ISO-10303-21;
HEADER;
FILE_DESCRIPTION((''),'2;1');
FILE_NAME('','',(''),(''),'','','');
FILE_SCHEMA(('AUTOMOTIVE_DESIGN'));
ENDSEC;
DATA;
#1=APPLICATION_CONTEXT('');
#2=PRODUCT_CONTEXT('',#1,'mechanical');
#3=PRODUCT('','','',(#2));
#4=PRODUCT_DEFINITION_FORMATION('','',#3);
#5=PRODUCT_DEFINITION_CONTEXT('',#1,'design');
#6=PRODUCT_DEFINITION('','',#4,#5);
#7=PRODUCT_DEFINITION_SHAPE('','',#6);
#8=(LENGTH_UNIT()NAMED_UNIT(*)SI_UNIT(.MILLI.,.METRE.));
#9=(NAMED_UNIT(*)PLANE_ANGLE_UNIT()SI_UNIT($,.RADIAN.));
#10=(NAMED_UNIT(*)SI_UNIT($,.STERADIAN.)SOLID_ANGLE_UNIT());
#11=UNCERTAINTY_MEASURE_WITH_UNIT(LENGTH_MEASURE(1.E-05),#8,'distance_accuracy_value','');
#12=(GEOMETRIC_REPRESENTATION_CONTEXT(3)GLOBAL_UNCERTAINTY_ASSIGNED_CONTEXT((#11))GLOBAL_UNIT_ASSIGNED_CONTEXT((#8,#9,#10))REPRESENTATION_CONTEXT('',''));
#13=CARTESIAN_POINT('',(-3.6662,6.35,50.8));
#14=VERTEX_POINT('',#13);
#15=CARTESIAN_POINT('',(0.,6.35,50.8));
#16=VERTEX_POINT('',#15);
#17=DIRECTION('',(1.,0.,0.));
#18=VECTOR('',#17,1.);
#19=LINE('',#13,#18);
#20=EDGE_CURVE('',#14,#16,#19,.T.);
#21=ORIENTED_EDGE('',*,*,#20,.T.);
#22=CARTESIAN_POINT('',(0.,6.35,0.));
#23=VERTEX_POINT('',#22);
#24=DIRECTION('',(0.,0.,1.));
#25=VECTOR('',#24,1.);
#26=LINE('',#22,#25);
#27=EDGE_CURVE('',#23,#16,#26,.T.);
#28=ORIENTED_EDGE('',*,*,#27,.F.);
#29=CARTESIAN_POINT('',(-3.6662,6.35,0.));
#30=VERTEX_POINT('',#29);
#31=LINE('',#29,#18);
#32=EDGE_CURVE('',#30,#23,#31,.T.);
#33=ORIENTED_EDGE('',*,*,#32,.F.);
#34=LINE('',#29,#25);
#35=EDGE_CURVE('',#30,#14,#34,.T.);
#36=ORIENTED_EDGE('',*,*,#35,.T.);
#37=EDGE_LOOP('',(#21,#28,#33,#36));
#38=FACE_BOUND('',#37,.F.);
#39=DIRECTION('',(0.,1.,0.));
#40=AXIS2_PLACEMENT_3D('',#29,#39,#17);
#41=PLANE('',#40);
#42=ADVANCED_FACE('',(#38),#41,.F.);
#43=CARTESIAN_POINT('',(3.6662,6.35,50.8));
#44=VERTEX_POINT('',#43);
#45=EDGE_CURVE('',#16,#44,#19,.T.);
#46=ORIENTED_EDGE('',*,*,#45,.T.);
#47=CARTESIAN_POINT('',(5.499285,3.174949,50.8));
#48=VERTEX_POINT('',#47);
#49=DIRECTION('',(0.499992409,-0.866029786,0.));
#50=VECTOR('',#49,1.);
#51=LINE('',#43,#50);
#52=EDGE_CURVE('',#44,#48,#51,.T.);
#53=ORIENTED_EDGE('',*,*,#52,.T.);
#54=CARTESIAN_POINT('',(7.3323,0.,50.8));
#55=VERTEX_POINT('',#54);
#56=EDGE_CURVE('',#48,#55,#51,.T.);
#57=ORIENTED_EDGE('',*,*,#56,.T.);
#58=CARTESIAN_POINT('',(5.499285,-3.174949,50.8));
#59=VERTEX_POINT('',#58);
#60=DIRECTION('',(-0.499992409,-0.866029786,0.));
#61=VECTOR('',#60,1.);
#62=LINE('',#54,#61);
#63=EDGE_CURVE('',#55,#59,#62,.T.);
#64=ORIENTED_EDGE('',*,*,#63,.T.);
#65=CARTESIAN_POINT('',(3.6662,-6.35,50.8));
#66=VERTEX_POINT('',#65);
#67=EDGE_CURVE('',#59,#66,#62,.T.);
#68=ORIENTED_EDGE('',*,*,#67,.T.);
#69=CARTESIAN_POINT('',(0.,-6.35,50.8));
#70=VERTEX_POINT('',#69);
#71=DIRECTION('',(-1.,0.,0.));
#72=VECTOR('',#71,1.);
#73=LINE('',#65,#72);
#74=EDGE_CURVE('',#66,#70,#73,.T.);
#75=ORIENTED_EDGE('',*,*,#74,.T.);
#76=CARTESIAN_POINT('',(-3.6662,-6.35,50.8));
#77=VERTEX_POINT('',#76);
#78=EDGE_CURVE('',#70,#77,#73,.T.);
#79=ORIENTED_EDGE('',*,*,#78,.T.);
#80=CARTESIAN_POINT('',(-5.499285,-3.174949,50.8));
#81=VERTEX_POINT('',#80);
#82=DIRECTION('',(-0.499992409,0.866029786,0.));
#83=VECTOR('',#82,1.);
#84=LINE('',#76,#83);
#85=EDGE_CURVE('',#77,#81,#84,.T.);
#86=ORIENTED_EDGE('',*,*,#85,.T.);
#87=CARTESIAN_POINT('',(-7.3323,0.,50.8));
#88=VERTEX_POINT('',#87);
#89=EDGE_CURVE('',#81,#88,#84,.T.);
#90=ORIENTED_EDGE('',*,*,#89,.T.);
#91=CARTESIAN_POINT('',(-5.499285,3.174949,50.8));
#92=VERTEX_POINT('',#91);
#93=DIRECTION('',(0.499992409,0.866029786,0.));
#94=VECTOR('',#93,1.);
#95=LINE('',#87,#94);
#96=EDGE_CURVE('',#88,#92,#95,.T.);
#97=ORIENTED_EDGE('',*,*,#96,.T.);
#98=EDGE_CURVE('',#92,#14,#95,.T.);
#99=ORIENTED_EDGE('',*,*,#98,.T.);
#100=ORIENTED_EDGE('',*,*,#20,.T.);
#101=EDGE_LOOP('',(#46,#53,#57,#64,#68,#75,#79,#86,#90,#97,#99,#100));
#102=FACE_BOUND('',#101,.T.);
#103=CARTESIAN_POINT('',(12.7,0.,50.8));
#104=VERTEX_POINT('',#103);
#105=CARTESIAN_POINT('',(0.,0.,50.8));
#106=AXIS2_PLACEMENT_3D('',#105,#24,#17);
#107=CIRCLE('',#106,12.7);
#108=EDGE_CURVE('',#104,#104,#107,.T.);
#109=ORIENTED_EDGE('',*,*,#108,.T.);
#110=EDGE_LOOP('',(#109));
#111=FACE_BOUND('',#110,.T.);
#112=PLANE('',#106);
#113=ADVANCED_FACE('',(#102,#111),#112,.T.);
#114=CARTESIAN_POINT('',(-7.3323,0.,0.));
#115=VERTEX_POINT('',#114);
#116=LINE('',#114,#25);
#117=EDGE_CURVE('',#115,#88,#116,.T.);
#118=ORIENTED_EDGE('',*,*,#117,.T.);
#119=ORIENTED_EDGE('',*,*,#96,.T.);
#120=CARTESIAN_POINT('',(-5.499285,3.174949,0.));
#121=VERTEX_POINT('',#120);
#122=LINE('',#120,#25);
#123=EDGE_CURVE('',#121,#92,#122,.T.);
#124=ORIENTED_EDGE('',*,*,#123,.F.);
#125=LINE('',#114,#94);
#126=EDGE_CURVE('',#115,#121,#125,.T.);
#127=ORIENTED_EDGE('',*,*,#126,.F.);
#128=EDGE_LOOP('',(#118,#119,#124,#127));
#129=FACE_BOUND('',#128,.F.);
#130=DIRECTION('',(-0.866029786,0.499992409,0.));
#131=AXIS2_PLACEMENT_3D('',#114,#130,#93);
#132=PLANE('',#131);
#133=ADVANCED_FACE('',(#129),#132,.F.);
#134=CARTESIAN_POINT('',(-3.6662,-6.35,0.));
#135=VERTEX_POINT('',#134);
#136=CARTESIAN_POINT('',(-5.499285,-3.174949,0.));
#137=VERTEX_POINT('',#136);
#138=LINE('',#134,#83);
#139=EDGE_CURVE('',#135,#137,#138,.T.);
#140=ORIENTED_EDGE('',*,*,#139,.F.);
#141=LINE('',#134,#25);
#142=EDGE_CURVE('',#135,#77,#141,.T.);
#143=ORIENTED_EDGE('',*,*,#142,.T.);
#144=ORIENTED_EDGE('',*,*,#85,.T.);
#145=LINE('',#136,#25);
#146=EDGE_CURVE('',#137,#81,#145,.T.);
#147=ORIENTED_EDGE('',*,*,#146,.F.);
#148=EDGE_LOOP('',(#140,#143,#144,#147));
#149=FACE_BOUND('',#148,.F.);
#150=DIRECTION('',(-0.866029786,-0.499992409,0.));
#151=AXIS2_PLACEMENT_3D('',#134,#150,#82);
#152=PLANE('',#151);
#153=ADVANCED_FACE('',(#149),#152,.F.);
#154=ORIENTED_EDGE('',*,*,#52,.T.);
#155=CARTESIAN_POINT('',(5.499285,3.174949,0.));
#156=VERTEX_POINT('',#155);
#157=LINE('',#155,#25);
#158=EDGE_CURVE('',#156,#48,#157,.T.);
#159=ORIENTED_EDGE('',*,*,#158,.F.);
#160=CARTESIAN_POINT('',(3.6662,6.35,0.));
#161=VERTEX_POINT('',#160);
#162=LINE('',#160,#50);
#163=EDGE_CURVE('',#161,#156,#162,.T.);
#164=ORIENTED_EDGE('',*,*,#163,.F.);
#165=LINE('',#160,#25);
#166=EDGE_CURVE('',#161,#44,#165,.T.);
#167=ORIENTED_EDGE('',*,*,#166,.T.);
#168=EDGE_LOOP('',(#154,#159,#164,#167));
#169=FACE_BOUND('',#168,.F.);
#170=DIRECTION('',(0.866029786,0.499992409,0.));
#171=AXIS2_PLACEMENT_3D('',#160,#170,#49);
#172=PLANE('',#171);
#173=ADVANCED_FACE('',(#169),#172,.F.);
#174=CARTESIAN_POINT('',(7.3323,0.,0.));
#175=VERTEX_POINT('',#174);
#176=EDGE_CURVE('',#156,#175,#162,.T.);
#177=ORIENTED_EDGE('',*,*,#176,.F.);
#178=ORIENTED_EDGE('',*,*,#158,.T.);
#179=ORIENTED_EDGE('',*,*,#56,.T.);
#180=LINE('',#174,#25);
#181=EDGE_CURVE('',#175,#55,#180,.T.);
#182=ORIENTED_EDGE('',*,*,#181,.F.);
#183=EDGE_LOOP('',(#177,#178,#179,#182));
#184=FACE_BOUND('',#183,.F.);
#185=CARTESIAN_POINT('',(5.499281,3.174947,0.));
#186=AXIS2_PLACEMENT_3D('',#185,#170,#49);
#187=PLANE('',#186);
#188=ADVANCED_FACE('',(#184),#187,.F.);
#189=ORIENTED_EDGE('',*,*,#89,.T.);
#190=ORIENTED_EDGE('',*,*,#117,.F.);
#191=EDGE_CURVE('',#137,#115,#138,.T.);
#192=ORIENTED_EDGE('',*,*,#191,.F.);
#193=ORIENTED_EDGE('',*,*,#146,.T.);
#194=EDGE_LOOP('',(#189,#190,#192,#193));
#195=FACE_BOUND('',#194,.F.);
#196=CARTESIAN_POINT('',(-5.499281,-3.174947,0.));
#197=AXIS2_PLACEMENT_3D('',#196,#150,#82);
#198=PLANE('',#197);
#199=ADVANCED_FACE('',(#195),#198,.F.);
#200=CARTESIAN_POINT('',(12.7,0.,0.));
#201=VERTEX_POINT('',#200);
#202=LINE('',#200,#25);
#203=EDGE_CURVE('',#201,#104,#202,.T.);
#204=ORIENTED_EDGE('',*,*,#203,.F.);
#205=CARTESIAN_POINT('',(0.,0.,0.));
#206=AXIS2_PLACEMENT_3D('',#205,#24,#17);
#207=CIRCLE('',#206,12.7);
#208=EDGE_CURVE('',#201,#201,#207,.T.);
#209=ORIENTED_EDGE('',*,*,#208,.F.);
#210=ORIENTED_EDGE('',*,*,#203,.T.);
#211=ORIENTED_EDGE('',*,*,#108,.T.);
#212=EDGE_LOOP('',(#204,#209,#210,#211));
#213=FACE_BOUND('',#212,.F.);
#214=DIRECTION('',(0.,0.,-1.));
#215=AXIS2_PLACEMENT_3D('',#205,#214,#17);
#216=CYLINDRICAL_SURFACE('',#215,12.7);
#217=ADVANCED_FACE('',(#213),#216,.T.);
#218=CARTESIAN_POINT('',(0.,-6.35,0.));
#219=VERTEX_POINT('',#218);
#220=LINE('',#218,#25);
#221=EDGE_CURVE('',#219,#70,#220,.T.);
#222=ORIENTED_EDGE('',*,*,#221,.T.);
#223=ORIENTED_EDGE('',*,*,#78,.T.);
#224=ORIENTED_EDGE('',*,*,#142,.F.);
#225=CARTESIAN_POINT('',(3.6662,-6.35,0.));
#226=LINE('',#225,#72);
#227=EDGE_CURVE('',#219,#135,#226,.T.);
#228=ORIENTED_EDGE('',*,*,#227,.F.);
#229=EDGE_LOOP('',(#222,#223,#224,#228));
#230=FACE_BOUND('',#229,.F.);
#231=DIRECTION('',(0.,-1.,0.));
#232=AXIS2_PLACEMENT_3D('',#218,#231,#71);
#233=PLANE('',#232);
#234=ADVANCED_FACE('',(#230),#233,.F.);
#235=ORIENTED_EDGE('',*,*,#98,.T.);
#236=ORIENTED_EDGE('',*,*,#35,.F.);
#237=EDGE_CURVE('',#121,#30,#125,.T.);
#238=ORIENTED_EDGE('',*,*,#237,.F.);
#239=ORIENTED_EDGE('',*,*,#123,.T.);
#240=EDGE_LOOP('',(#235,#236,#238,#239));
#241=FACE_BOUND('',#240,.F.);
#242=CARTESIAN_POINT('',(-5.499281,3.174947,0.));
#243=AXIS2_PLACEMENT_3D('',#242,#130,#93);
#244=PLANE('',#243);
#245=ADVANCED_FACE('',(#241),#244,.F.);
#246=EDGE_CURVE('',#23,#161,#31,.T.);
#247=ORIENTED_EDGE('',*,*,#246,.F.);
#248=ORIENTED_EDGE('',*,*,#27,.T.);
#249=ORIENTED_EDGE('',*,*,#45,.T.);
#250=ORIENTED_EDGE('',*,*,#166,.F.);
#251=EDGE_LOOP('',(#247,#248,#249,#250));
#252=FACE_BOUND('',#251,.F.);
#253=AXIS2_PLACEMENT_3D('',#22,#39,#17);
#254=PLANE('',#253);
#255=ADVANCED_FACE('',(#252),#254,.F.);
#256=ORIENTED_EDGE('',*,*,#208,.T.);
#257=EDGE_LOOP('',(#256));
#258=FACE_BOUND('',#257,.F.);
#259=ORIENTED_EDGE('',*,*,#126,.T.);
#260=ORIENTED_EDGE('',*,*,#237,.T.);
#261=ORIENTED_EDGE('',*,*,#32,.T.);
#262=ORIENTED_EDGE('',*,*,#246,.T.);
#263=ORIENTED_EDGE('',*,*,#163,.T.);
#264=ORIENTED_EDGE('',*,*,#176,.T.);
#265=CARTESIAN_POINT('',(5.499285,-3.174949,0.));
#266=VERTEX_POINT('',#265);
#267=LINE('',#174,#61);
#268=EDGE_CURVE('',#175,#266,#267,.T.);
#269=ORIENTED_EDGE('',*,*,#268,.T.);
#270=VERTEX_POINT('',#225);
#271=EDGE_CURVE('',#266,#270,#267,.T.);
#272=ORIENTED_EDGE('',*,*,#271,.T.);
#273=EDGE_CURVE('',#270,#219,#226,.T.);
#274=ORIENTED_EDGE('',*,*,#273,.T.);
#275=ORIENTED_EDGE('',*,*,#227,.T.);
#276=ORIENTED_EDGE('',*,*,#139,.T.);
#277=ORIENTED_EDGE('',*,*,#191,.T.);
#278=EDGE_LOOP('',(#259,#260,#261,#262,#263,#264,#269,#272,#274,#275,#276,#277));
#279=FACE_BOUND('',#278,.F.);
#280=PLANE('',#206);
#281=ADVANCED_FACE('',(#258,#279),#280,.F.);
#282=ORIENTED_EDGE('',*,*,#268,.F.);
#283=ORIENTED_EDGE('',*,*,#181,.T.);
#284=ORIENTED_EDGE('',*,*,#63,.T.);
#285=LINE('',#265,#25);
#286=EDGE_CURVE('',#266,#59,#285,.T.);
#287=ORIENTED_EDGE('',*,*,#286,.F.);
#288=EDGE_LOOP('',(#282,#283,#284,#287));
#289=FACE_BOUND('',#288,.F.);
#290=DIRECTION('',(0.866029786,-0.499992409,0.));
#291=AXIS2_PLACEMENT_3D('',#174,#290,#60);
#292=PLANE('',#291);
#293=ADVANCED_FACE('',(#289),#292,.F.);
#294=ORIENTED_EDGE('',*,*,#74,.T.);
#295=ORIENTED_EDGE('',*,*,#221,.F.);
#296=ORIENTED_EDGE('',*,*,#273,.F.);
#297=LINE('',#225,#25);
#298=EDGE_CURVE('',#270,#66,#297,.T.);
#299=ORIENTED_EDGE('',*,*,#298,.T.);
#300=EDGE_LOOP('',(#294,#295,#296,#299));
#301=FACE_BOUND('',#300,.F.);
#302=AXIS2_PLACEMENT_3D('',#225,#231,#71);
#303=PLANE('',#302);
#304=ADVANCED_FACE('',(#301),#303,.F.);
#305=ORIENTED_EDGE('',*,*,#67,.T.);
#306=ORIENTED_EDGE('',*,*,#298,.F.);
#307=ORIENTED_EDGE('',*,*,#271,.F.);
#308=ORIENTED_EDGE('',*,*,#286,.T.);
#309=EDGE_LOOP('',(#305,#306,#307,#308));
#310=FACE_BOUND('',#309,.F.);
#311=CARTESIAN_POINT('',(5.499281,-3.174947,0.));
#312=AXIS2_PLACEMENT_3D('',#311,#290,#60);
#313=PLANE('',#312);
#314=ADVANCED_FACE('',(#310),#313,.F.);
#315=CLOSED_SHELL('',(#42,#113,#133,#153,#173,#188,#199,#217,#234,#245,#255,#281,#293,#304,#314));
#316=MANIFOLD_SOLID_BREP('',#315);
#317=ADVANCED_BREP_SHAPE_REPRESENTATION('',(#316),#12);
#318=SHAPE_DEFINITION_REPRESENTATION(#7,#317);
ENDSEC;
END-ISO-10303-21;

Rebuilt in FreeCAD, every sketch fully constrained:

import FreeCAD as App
import Part
import Sketcher

V = App.Vector
Q = App.Units.Quantity

doc = App.newDocument("Part")
params = doc.addObject("Spreadsheet::Sheet", "Params")
for row, (alias, value) in enumerate([
    ("sketch1_diameter", "1 in"),
    ("pad1_length", "2 in"),
], start=1):
    params.set(f"A{row}", alias)
    params.set(f"B{row}", "=" + value)
    params.setAlias(f"B{row}", alias)

body = doc.addObject("PartDesign::Body", "Body")

# Sketch on XY plane
sketch1 = body.newObject("Sketcher::SketchObject", "Sketch")
sketch1.AttachmentSupport = (doc.getObject("XY_Plane"), [""])
sketch1.MapMode = "FlatFace"
sketch1.addGeometry([
    Part.Circle(V(0, 0, 0), V(0, 0, 1), 12.7),  # 0
    Part.LineSegment(V(3.6662, 6.35, 0), V(7.3323, 0, 0)),  # 1
    Part.LineSegment(V(7.3323, 0, 0), V(3.6662, -6.35, 0)),  # 2
    Part.LineSegment(V(3.6662, -6.35, 0), V(-3.6662, -6.35, 0)),  # 3
    Part.LineSegment(V(-3.6662, -6.35, 0), V(-7.3323, 0, 0)),  # 4
    Part.LineSegment(V(-7.3323, 0, 0), V(-3.6662, 6.35, 0)),  # 5
    Part.LineSegment(V(-3.6662, 6.35, 0), V(3.6662, 6.35, 0)),  # 6
], False)
sketch1.addConstraint([
    Sketcher.Constraint("Coincident", 1, 2, 2, 1),
    Sketcher.Constraint("Coincident", 2, 2, 3, 1),
    Sketcher.Constraint("Coincident", 3, 2, 4, 1),
    Sketcher.Constraint("Coincident", 4, 2, 5, 1),
    Sketcher.Constraint("Coincident", 5, 2, 6, 1),
    Sketcher.Constraint("Coincident", 6, 2, 1, 1),
    Sketcher.Constraint("Horizontal", 3),
    Sketcher.Constraint("Horizontal", 6),
    Sketcher.Constraint("Coincident", 0, 3, -1, 1),
    Sketcher.Constraint("Symmetric", 1, 2, 4, 2, -1, 1),
    Sketcher.Constraint("Symmetric", 2, 2, 5, 2, -1, 1),
    Sketcher.Constraint("PointOnObject", 1, 2, -1),
    Sketcher.Constraint("Parallel", 1, 4),
    Sketcher.Constraint("Vertical", 3, 2, 5, 2),
    Sketcher.Constraint("Diameter", 0, Q("1 in")),
    Sketcher.Constraint("DistanceY", 3, 2, 5, 2, Q("0.5 in")),
    Sketcher.Constraint("Angle", 1, Q("-60.0005 deg")),
    Sketcher.Constraint("DistanceX", 3, 2, 1, 2, Q("0.433 in")),
])
sketch1.setExpression("Constraints[14]", "Params.sketch1_diameter")
pad1 = body.newObject("PartDesign::Pad", "Pad")
pad1.Profile = sketch1
pad1.setExpression("Length", "Params.pad1_length")

doc.recompute()
